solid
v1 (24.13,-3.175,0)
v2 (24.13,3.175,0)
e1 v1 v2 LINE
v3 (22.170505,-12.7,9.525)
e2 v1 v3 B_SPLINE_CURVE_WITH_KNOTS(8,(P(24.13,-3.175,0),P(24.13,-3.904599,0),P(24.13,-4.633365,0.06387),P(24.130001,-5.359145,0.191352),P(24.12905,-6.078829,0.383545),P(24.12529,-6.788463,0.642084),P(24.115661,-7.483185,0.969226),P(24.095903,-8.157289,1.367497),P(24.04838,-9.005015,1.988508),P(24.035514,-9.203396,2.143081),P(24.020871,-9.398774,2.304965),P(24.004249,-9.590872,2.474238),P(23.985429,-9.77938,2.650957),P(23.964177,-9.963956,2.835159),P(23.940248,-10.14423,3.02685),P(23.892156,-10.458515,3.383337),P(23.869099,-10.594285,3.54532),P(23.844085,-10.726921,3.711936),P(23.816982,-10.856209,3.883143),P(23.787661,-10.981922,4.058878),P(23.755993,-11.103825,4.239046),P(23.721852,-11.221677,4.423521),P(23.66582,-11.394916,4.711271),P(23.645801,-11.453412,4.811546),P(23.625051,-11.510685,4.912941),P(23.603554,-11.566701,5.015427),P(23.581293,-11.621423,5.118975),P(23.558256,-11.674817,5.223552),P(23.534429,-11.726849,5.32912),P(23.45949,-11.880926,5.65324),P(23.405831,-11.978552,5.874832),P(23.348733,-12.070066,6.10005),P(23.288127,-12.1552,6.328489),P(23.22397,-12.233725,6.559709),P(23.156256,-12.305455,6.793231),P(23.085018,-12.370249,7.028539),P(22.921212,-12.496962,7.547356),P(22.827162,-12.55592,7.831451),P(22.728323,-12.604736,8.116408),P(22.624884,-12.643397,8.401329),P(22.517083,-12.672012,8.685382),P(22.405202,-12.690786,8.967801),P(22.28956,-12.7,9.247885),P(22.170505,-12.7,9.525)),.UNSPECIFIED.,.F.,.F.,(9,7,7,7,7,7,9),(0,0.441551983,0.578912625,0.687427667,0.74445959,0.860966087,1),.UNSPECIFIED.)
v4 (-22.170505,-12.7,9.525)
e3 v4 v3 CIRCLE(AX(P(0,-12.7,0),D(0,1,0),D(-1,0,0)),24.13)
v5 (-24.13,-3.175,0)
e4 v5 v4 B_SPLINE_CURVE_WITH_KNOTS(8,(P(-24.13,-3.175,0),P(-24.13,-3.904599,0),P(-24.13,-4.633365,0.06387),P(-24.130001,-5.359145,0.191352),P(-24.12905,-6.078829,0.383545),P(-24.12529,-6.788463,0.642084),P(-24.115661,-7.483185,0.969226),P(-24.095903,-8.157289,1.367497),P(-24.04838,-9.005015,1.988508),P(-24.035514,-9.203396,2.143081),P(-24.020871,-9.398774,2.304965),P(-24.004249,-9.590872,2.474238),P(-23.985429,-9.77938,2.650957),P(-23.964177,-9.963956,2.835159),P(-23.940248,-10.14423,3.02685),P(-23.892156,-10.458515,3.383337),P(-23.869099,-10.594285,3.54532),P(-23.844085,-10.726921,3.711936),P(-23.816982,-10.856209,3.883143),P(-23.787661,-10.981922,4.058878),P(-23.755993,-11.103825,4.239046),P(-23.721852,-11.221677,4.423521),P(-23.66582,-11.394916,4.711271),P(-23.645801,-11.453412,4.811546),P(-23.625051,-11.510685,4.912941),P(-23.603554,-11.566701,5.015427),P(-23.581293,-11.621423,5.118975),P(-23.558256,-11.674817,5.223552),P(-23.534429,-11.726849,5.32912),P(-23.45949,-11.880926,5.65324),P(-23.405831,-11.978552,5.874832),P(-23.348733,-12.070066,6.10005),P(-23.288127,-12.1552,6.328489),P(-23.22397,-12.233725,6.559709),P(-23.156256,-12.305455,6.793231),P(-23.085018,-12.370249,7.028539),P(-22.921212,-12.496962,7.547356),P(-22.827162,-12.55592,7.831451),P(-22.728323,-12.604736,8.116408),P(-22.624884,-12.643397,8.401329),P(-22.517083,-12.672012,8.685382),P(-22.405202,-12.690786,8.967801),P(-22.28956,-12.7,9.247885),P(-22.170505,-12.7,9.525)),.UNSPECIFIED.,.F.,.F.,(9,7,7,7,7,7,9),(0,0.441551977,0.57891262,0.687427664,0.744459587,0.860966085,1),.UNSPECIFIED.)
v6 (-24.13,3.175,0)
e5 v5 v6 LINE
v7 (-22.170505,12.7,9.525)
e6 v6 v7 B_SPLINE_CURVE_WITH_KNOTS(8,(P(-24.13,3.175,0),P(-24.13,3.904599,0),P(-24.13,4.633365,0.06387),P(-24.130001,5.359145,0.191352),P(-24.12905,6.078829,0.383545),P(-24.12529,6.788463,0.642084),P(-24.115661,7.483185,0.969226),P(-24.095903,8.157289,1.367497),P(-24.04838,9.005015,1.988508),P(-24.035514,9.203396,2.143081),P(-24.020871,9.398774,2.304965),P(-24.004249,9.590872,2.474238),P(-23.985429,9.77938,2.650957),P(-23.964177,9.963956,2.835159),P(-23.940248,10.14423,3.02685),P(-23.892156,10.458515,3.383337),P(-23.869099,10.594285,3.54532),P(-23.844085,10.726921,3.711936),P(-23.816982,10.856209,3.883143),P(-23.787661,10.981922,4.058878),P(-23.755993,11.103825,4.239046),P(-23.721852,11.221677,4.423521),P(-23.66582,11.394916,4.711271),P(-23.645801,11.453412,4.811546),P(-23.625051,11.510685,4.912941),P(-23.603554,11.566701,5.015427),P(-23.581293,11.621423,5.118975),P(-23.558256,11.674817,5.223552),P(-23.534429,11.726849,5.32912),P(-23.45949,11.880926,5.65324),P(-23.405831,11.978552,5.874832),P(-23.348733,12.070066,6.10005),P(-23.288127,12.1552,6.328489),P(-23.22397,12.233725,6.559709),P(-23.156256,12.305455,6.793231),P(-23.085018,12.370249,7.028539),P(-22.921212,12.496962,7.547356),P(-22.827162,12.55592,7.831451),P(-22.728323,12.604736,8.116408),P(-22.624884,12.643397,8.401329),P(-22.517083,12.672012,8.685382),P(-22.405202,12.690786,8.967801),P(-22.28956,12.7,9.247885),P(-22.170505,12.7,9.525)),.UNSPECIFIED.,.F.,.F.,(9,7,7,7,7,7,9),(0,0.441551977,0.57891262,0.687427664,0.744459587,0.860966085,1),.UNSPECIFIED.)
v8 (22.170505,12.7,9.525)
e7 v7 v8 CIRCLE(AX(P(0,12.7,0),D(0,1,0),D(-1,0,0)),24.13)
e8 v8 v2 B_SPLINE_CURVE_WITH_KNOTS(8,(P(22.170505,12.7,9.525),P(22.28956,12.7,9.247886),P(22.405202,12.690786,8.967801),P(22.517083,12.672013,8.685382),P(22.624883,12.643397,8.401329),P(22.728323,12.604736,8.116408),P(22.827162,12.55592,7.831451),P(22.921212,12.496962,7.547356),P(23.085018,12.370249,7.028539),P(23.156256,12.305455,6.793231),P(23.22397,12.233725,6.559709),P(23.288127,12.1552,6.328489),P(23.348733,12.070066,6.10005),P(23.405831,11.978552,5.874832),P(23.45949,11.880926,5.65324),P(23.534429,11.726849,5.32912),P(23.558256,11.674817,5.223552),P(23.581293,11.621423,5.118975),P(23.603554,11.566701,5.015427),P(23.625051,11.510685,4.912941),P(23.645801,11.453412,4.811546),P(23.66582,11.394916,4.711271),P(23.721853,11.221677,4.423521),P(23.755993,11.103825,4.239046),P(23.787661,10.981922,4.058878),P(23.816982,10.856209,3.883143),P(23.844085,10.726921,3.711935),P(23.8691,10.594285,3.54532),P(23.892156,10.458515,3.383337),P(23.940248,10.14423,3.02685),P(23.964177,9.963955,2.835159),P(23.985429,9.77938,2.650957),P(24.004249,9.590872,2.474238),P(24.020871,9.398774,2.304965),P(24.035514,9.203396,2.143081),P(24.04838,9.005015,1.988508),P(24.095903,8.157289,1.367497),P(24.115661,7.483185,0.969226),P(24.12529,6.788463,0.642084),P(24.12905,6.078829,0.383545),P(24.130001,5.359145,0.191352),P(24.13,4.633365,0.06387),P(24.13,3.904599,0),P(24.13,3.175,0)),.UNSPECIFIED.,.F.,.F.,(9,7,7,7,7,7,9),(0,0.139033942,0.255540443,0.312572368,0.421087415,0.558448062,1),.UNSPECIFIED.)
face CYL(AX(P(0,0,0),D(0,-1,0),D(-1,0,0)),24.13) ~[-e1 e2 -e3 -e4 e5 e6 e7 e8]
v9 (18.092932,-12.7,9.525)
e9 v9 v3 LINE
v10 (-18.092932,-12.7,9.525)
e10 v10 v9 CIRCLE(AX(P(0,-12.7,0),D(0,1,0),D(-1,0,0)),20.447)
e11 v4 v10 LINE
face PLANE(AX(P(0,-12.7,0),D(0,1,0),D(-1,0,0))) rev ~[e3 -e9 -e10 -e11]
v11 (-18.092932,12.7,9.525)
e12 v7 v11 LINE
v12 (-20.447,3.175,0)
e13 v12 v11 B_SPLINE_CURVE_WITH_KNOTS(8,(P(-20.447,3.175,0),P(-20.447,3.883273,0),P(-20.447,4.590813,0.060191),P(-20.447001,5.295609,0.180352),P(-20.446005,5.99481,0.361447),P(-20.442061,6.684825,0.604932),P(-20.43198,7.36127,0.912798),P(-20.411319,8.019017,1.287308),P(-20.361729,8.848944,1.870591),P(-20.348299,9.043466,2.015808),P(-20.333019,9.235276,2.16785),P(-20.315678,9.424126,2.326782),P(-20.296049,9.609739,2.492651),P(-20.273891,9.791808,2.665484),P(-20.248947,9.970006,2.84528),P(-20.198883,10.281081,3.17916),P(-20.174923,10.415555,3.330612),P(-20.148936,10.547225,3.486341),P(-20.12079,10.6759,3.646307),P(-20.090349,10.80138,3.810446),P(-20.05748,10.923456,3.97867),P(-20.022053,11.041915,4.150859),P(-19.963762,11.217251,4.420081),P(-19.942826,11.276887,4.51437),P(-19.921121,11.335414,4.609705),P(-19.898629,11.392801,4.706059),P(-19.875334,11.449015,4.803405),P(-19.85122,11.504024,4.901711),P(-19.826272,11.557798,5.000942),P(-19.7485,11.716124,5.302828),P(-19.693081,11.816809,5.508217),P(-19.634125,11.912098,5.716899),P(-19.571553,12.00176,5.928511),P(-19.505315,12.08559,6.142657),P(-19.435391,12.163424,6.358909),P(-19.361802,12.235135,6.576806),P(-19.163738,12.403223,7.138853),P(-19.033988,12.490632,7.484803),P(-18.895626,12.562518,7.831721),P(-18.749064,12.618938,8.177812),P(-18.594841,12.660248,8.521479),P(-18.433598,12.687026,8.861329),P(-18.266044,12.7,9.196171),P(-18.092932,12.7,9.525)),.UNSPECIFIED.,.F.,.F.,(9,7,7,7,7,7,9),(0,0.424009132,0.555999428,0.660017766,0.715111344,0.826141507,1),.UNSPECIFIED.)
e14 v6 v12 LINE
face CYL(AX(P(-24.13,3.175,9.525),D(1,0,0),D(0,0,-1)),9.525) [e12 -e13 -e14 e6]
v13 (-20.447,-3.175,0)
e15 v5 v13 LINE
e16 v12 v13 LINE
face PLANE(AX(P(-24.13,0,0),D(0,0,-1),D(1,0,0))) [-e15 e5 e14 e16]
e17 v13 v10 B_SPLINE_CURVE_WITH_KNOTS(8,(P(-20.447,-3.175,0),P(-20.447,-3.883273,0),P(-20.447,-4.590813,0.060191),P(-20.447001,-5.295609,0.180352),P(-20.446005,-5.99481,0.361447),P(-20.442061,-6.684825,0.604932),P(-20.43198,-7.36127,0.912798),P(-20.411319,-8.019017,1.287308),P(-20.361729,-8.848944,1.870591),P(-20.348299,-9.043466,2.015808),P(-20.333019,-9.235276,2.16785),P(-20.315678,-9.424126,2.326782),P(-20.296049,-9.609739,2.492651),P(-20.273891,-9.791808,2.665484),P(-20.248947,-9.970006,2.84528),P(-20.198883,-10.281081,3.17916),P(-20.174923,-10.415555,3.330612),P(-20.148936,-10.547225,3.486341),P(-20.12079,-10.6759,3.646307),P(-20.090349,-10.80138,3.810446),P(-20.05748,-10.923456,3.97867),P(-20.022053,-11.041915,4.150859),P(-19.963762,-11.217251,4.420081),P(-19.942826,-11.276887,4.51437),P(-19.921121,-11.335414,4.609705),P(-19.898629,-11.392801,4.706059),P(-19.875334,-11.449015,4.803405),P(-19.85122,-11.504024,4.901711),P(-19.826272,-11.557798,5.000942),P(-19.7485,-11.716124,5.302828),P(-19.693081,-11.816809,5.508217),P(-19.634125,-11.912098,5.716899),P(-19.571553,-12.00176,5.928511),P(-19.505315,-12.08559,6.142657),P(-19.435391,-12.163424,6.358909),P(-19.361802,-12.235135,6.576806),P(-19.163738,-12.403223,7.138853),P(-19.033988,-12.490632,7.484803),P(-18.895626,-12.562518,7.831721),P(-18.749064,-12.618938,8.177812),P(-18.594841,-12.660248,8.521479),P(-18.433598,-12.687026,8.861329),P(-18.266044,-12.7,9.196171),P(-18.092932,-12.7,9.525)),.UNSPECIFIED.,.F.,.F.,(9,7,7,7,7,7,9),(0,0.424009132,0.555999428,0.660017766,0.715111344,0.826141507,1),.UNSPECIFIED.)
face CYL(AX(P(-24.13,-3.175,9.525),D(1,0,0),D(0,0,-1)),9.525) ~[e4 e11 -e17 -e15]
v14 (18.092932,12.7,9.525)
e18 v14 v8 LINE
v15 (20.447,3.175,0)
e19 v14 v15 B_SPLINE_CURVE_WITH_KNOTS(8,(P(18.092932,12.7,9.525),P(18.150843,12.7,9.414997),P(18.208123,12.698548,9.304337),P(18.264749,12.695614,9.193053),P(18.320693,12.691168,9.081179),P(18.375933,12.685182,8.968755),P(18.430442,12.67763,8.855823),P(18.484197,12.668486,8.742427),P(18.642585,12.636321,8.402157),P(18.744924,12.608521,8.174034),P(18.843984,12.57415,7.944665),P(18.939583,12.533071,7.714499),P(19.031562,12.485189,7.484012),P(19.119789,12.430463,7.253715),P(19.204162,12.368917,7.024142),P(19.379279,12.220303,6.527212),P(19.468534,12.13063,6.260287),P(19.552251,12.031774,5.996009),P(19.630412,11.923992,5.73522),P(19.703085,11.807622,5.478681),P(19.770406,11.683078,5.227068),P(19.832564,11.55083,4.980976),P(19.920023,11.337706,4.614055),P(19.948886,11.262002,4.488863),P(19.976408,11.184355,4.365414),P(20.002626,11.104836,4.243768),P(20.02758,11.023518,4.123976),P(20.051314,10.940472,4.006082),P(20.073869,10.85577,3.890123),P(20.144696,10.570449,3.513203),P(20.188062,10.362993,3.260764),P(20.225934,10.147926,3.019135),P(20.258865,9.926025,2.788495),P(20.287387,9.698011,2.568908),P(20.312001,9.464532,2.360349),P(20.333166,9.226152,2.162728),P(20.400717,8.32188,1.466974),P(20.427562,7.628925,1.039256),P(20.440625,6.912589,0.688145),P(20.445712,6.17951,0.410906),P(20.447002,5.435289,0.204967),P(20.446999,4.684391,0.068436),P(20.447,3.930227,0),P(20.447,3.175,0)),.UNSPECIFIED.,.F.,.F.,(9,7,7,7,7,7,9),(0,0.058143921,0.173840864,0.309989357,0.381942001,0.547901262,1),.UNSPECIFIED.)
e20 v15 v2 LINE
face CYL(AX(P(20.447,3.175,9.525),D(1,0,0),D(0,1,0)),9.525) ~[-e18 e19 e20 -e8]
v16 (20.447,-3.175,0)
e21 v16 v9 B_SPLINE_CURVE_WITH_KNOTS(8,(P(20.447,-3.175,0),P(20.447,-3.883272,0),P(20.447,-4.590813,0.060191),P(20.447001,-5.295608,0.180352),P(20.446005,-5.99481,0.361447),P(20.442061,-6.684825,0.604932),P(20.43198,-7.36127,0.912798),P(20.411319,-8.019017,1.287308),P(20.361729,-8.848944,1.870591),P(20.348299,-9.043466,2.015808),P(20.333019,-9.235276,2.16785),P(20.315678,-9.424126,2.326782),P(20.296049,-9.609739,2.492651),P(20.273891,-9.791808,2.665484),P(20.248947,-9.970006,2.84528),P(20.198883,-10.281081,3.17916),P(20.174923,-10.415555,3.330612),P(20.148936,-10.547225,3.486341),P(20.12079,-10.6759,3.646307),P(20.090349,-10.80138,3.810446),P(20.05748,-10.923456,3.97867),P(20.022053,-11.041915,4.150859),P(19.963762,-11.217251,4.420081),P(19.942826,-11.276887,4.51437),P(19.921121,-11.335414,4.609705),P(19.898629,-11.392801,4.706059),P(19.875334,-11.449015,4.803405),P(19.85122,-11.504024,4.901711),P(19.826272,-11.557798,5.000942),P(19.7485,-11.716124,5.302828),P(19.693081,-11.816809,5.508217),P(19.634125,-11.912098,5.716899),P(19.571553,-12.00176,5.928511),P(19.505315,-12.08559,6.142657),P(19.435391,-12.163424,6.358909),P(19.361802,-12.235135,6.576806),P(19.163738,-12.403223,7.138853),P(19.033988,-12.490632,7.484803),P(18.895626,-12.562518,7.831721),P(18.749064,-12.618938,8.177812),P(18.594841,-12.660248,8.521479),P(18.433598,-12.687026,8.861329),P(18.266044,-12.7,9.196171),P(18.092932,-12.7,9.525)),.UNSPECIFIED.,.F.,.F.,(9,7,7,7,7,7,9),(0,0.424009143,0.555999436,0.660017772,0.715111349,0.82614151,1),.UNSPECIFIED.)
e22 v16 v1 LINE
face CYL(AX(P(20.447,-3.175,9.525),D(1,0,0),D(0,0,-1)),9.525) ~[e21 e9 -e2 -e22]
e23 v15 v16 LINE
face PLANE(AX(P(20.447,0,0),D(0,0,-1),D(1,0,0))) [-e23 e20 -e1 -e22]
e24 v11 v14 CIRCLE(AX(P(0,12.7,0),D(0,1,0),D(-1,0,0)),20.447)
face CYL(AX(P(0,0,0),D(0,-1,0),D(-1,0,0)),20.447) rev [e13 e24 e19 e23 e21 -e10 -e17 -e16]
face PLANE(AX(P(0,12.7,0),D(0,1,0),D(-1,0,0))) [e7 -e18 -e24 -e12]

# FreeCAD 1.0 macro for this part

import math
import FreeCAD as App
import Part
import Sketcher

V = App.Vector
Q = App.Units.Quantity


def edges_at(feature, points):
    """Names of the edges that pass closest to the given points."""
    edges = feature.Shape.Edges
    near = lambda p: min(range(len(edges)), key=lambda i: edges[i].distToShape(Part.Vertex(*p))[0])
    return sorted({f"Edge{near(p) + 1}" for p in points})

doc = App.newDocument("Part")
params = doc.addObject("Spreadsheet::Sheet", "Params")
for row, (alias, value) in enumerate([
    ("sketch1_radius", "0.95 in"),
    ("sketch1_radius2", "0.805 in"),
    ("pad1_length", "1 in"),
    ("fillet_radius", "0.375 in"),
], start=1):
    params.set(f"A{row}", alias)
    params.set(f"B{row}", "=" + value)
    params.setAlias(f"B{row}", alias)

body = doc.addObject("PartDesign::Body", "Body")

sketch1 = body.newObject("Sketcher::SketchObject", "Sketch")
sketch1.AttachmentSupport = (doc.getObject("XZ_Plane"), [""])
sketch1.MapMode = "FlatFace"
sketch1.addGeometry(Part.LineSegment(V(-20.4, 0, 0), V(-24.1, 0, 0)), False)
sketch1.addGeometry(Part.ArcOfCircle(Part.Circle(V(0, 0, 0), V(0, 0, 1), 24.1), math.radians(0), math.radians(180)), False)
sketch1.addGeometry(Part.LineSegment(V(24.1, 0, 0), V(20.4, 0, 0)), False)
sketch1.addGeometry(Part.ArcOfCircle(Part.Circle(V(0, 0, 0), V(0, 0, 1), 20.4), math.radians(0), math.radians(180)), False)
sketch1.addConstraint(Sketcher.Constraint("Coincident", 0, 2, 1, 2))
sketch1.addConstraint(Sketcher.Constraint("Coincident", 1, 1, 2, 1))
sketch1.addConstraint(Sketcher.Constraint("Coincident", 2, 2, 3, 1))
sketch1.addConstraint(Sketcher.Constraint("Coincident", 3, 2, 0, 1))
sketch1.addConstraint(Sketcher.Constraint("Horizontal", 0))
sketch1.addConstraint(Sketcher.Constraint("Horizontal", 2))
sketch1.addConstraint(Sketcher.Constraint("Coincident", 1, 3, -1, 1))
sketch1.addConstraint(Sketcher.Constraint("Coincident", 3, 3, -1, 1))
sketch1.addConstraint(Sketcher.Constraint("PointOnObject", 0, 2, -1))
sketch1.addConstraint(Sketcher.Constraint("PointOnObject", 1, 1, -1))
sketch1.addConstraint(Sketcher.Constraint("Radius", 1, Q("0.95 in")))
sketch1.addConstraint(Sketcher.Constraint("Radius", 3, Q("0.805 in")))
sketch1.setExpression("Constraints[10]", "Params.sketch1_radius")
sketch1.setExpression("Constraints[11]", "Params.sketch1_radius2")
pad1 = body.newObject("PartDesign::Pad", "Pad")
pad1.Profile = sketch1
pad1.setExpression("Length", "Params.pad1_length")
pad1.Midplane = True
doc.recompute()

fillet = body.newObject("PartDesign::Fillet", "Fillet")
fillet.Base = (pad1, edges_at(pad1, [
    (-22.288, 12.7, 0),
    (-22.288, -12.7, 0),
    (22.288, -12.7, 0),
    (22.288, 12.7, 0),
]))
fillet.setExpression("Radius", "Params.fillet_radius")

doc.recompute()
